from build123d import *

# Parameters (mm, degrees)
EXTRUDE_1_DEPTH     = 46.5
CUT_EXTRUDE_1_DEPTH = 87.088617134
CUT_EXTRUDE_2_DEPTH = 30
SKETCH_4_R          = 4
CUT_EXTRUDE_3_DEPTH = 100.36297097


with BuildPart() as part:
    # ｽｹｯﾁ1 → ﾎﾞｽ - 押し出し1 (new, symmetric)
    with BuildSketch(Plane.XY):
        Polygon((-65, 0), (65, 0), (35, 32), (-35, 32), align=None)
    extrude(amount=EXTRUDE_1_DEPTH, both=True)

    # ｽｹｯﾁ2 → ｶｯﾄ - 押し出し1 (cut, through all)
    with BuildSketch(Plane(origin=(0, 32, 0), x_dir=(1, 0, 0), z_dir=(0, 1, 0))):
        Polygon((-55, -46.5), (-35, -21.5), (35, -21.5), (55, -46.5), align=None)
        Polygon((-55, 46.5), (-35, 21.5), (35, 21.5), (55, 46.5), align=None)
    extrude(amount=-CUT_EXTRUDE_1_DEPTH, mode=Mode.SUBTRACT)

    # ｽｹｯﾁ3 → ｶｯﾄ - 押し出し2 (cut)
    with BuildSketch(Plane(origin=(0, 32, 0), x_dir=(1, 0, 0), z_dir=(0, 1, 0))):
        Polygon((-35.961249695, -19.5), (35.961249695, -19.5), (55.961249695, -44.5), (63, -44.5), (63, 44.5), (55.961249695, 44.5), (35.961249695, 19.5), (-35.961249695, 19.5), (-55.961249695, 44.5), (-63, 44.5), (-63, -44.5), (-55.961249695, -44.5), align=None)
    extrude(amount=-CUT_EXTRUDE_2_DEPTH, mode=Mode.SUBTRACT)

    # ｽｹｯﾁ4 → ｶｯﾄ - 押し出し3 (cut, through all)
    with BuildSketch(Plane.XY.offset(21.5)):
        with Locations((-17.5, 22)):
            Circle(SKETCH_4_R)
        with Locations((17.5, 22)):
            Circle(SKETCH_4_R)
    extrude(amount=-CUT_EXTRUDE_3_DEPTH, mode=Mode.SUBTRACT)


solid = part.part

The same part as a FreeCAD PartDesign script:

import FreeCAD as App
import Part
import Sketcher
from FreeCAD import Vector

doc = App.newDocument("Part")
body = doc.addObject("PartDesign::Body", "Body")

# Sketch on XY plane
sketch1 = doc.addObject("Sketcher::SketchObject", "Sketch")
body.addObject(sketch1)
sketch1.AttachmentSupport = (doc.XY_Plane, [""])
sketch1.MapMode = "FlatFace"
sketch1.addGeometry(Part.LineSegment(Vector(-65, 0, 0), Vector(65, 0, 0)), False)
sketch1.addGeometry(Part.LineSegment(Vector(65, 0, 0), Vector(35, 32, 0)), False)
sketch1.addGeometry(Part.LineSegment(Vector(35, 32, 0), Vector(-35, 32, 0)), False)
sketch1.addGeometry(Part.LineSegment(Vector(-35, 32, 0), Vector(-65, 0, 0)), False)
sketch1.addConstraint(Sketcher.Constraint("Coincident", 0, 2, 1, 1))
sketch1.addConstraint(Sketcher.Constraint("Coincident", 1, 2, 2, 1))
sketch1.addConstraint(Sketcher.Constraint("Coincident", 2, 2, 3, 1))
sketch1.addConstraint(Sketcher.Constraint("Coincident", 3, 2, 0, 1))
sketch1.addConstraint(Sketcher.Constraint("Horizontal", 0))
sketch1.addConstraint(Sketcher.Constraint("Horizontal", 2))
sketch1.addConstraint(Sketcher.Constraint("Symmetric", 0, 2, 3, 2, -1, 1))
sketch1.addConstraint(Sketcher.Constraint("Equal", 1, 3))
sketch1.addConstraint(Sketcher.Constraint("DistanceX", 0, 1, 0, 2, 130.0))
sketch1.addConstraint(Sketcher.Constraint("DistanceX", 2, 2, 2, 1, 70.0))
sketch1.addConstraint(Sketcher.Constraint("DistanceY", -1, 1, 1, 2, 32.0))
pad1 = doc.addObject("PartDesign::Pad", "Pad")
body.addObject(pad1)
pad1.Profile = sketch1
pad1.Length = 93
pad1.Midplane = True

# Sketch on XZ plane
sketch2 = doc.addObject("Sketcher::SketchObject", "Sketch001")
body.addObject(sketch2)
sketch2.AttachmentSupport = (doc.XZ_Plane, [""])
sketch2.MapMode = "FlatFace"
sketch2.AttachmentOffset = App.Placement(Vector(0, 0, -32), App.Rotation())
sketch2.addGeometry(Part.LineSegment(Vector(-35, 22, 0), Vector(-55, 46, 0)), False)
sketch2.addGeometry(Part.LineSegment(Vector(-55, 46, 0), Vector(55, 46, 0)), False)
sketch2.addGeometry(Part.LineSegment(Vector(55, 46, 0), Vector(35, 22, 0)), False)
sketch2.addGeometry(Part.LineSegment(Vector(35, 22, 0), Vector(-35, 22, 0)), False)
sketch2.addGeometry(Part.LineSegment(Vector(-55, -46, 0), Vector(-35, -22, 0)), False)
sketch2.addGeometry(Part.LineSegment(Vector(-35, -22, 0), Vector(35, -22, 0)), False)
sketch2.addGeometry(Part.LineSegment(Vector(35, -22, 0), Vector(55, -46, 0)), False)
sketch2.addGeometry(Part.LineSegment(Vector(55, -46, 0), Vector(-55, -46, 0)), False)
sketch2.addConstraint(Sketcher.Constraint("Coincident", 0, 2, 1, 1))
sketch2.addConstraint(Sketcher.Constraint("Coincident", 1, 2, 2, 1))
sketch2.addConstraint(Sketcher.Constraint("Coincident", 2, 2, 3, 1))
sketch2.addConstraint(Sketcher.Constraint("Coincident", 3, 2, 0, 1))
sketch2.addConstraint(Sketcher.Constraint("Coincident", 4, 2, 5, 1))
sketch2.addConstraint(Sketcher.Constraint("Coincident", 5, 2, 6, 1))
sketch2.addConstraint(Sketcher.Constraint("Coincident", 6, 2, 7, 1))
sketch2.addConstraint(Sketcher.Constraint("Coincident", 7, 2, 4, 1))
sketch2.addConstraint(Sketcher.Constraint("Horizontal", 1))
sketch2.addConstraint(Sketcher.Constraint("Horizontal", 3))
sketch2.addConstraint(Sketcher.Constraint("Horizontal", 5))
sketch2.addConstraint(Sketcher.Constraint("Horizontal", 7))
sketch2.addConstraint(Sketcher.Constraint("Symmetric", 2, 2, 4, 2, -1, 1))
sketch2.addConstraint(Sketcher.Constraint("Symmetric", 0, 2, 6, 2, -1, 1))
sketch2.addConstraint(Sketcher.Constraint("Parallel", 2, 4))
sketch2.addConstraint(Sketcher.Constraint("Parallel", 0, 6))
sketch2.addConstraint(Sketcher.Constraint("Vertical", 3, 2, 4, 2))
sketch2.addConstraint(Sketcher.Constraint("Vertical", 1, 2, 6, 2))
sketch2.addConstraint(Sketcher.Constraint("DistanceX", 1, 1, 1, 2, 110.0))
sketch2.addConstraint(Sketcher.Constraint("DistanceX", 3, 2, 3, 1, 70.0))
sketch2.addConstraint(Sketcher.Constraint("DistanceY", 2, 2, 1, 2, 25.0))
sketch2.addConstraint(Sketcher.Constraint("DistanceY", 4, 2, 3, 2, 43.0))
pocket1 = doc.addObject("PartDesign::Pocket", "Pocket")
body.addObject(pocket1)
pocket1.Profile = sketch2
pocket1.Type = "ThroughAll"
pocket1.Reversed = True

# Sketch on XZ plane
sketch3 = doc.addObject("Sketcher::SketchObject", "Sketch002")
body.addObject(sketch3)
sketch3.AttachmentSupport = (doc.XZ_Plane, [""])
sketch3.MapMode = "FlatFace"
sketch3.AttachmentOffset = App.Placement(Vector(0, 0, -32), App.Rotation())
sketch3.addGeometry(Part.LineSegment(Vector(-36, 20, 0), Vector(36, 20, 0)), False)
sketch3.addGeometry(Part.LineSegment(Vector(36, 20, 0), Vector(56, 44, 0)), False)
sketch3.addGeometry(Part.LineSegment(Vector(56, 44, 0), Vector(63, 44, 0)), False)
sketch3.addGeometry(Part.LineSegment(Vector(63, 44, 0), Vector(63, -44, 0)), False)
sketch3.addGeometry(Part.LineSegment(Vector(63, -44, 0), Vector(56, -44, 0)), False)
sketch3.addGeometry(Part.LineSegment(Vector(56, -44, 0), Vector(36, -20, 0)), False)
sketch3.addGeometry(Part.LineSegment(Vector(36, -20, 0), Vector(-36, -20, 0)), False)
sketch3.addGeometry(Part.LineSegment(Vector(-36, -20, 0), Vector(-56, -44, 0)), False)
sketch3.addGeometry(Part.LineSegment(Vector(-56, -44, 0), Vector(-63, -44, 0)), False)
sketch3.addGeometry(Part.LineSegment(Vector(-63, -44, 0), Vector(-63, 44, 0)), False)
sketch3.addGeometry(Part.LineSegment(Vector(-63, 44, 0), Vector(-56, 44, 0)), False)
sketch3.addGeometry(Part.LineSegment(Vector(-56, 44, 0), Vector(-36, 20, 0)), False)
sketch3.addConstraint(Sketcher.Constraint("Coincident", 0, 2, 1, 1))
sketch3.addConstraint(Sketcher.Constraint("Coincident", 1, 2, 2, 1))
sketch3.addConstraint(Sketcher.Constraint("Coincident", 2, 2, 3, 1))
sketch3.addConstraint(Sketcher.Constraint("Coincident", 3, 2, 4, 1))
sketch3.addConstraint(Sketcher.Constraint("Coincident", 4, 2, 5, 1))
sketch3.addConstraint(Sketcher.Constraint("Coincident", 5, 2, 6, 1))
sketch3.addConstraint(Sketcher.Constraint("Coincident", 6, 2, 7, 1))
sketch3.addConstraint(Sketcher.Constraint("Coincident", 7, 2, 8, 1))
sketch3.addConstraint(Sketcher.Constraint("Coincident", 8, 2, 9, 1))
sketch3.addConstraint(Sketcher.Constraint("Coincident", 9, 2, 10, 1))
sketch3.addConstraint(Sketcher.Constraint("Coincident", 10, 2, 11, 1))
sketch3.addConstraint(Sketcher.Constraint("Coincident", 11, 2, 0, 1))
sketch3.addConstraint(Sketcher.Constraint("Horizontal", 0))
sketch3.addConstraint(Sketcher.Constraint("Horizontal", 2))
sketch3.addConstraint(Sketcher.Constraint("Vertical", 3))
sketch3.addConstraint(Sketcher.Constraint("Horizontal", 4))
sketch3.addConstraint(Sketcher.Constraint("Horizontal", 6))
sketch3.addConstraint(Sketcher.Constraint("Horizontal", 8))
sketch3.addConstraint(Sketcher.Constraint("Vertical", 9))
sketch3.addConstraint(Sketcher.Constraint("Horizontal", 10))
sketch3.addConstraint(Sketcher.Constraint("Symmetric", 0, 2, 6, 2, -1, 1))
sketch3.addConstraint(Sketcher.Constraint("Symmetric", 1, 2, 7, 2, -1, 1))
sketch3.addConstraint(Sketcher.Constraint("Symmetric", 3, 2, 9, 2, -1, 1))
sketch3.addConstraint(Sketcher.Constraint("Symmetric", 4, 2, 7, 2, -2))
sketch3.addConstraint(Sketcher.Constraint("Parallel", 5, 11))
sketch3.addConstraint(Sketcher.Constraint("Vertical", 0, 2, 5, 2))
sketch3.addConstraint(Sketcher.Constraint("Vertical", 7, 2, 10, 2))
sketch3.addConstraint(Sketcher.Constraint("DistanceY", 3, 2, 3, 1, 89.0))
sketch3.addConstraint(Sketcher.Constraint("DistanceX", -1, 1, 2, 2, 63.0))
sketch3.addConstraint(Sketcher.Constraint("DistanceX", 0, 2, 1, 2, 20.0))
sketch3.addConstraint(Sketcher.Constraint("DistanceY", 0, 2, 1, 2, 25.0))
sketch3.addConstraint(Sketcher.Constraint("DistanceX", 0, 1, 0, 2, 71.922499))
pocket2 = doc.addObject("PartDesign::Pocket", "Pocket001")
body.addObject(pocket2)
pocket2.Profile = sketch3
pocket2.Length = 30
pocket2.Reversed = True

# Sketch on XY plane
sketch4 = doc.addObject("Sketcher::SketchObject", "Sketch003")
body.addObject(sketch4)
sketch4.AttachmentSupport = (doc.XY_Plane, [""])
sketch4.MapMode = "FlatFace"
sketch4.AttachmentOffset = App.Placement(Vector(0, 0, 21.5), App.Rotation())
sketch4.addGeometry(Part.Circle(Vector(-17.5, 22, 0), Vector(0, 0, 1), 4), False)
sketch4.addGeometry(Part.Circle(Vector(17.5, 22, 0), Vector(0, 0, 1), 4), False)
sketch4.addConstraint(Sketcher.Constraint("Equal", 0, 1))
sketch4.addConstraint(Sketcher.Constraint("Symmetric", 0, 3, 1, 3, -2))
sketch4.addConstraint(Sketcher.Constraint("Diameter", 0, 8.0))
sketch4.addConstraint(Sketcher.Constraint("DistanceY", -1, 1, 0, 3, 22.0))
sketch4.addConstraint(Sketcher.Constraint("DistanceX", 0, 3, 1, 3, 35.0))
pocket3 = doc.addObject("PartDesign::Pocket", "Pocket002")
body.addObject(pocket3)
pocket3.Profile = sketch4
pocket3.Type = "ThroughAll"

doc.recompute()
